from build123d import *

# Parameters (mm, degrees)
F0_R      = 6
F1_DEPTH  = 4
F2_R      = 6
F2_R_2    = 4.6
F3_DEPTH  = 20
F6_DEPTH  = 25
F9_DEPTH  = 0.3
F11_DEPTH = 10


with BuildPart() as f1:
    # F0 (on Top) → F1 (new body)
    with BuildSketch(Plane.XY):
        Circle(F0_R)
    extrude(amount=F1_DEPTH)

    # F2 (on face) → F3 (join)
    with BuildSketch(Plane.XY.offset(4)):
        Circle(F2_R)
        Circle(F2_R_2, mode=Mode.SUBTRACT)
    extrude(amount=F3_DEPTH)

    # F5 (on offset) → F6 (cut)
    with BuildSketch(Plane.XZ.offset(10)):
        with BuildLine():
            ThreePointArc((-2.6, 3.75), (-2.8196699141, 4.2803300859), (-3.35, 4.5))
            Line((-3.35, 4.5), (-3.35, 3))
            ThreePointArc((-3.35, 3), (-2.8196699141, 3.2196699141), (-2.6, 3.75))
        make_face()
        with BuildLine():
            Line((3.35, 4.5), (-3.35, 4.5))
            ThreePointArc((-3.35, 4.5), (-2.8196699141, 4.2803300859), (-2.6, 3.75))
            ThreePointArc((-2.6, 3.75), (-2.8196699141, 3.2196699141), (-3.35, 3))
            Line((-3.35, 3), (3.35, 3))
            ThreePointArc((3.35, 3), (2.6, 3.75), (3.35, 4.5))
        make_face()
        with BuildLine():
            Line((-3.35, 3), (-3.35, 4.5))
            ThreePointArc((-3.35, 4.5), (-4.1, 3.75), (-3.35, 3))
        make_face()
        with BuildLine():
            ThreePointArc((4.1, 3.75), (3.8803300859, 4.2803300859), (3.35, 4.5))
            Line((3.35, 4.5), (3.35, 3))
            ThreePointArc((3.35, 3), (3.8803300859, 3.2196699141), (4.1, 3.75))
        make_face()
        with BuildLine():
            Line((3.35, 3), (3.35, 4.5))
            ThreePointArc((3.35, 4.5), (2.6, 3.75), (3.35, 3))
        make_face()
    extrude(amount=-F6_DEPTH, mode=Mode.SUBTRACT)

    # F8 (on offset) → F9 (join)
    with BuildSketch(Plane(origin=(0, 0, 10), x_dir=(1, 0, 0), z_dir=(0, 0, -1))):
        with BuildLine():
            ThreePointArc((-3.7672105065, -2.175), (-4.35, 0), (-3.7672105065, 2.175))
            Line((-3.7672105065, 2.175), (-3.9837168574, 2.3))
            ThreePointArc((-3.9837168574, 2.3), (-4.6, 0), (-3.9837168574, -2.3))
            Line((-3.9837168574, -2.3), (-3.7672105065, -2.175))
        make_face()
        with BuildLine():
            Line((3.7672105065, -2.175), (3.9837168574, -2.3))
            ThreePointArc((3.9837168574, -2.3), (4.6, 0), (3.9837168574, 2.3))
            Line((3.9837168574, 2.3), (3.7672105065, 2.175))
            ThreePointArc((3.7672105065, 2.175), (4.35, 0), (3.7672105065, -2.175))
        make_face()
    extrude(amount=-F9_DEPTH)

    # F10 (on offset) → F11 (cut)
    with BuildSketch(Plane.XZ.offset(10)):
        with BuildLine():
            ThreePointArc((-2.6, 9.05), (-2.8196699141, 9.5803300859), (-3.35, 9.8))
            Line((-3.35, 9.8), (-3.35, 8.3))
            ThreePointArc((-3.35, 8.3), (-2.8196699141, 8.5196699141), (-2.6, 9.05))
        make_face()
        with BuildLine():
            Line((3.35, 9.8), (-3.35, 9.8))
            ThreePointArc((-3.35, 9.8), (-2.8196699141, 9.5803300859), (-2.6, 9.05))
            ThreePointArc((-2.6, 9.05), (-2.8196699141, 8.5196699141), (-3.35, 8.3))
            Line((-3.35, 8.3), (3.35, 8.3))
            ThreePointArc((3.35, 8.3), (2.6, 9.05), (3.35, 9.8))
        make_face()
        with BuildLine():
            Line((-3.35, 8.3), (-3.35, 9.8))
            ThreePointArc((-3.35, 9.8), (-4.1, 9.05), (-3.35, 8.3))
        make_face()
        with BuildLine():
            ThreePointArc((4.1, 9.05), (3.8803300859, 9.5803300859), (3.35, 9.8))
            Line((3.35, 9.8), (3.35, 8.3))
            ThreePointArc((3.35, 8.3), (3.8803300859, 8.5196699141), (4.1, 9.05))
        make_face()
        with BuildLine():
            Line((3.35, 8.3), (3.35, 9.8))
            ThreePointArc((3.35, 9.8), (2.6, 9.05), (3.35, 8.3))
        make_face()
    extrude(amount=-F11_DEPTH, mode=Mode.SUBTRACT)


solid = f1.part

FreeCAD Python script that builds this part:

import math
import FreeCAD as App
import Part
import Sketcher
from FreeCAD import Vector
Q = App.Units.Quantity

doc = App.newDocument("Part")
body = doc.addObject("PartDesign::Body", "Body")

sketch1 = body.newObject("Sketcher::SketchObject", "Sketch")
sketch1.AttachmentSupport = (doc.getObject("XY_Plane"), [""])
sketch1.MapMode = "FlatFace"
sketch1.addGeometry(Part.Circle(Vector(0, 0, 0), Vector(0, 0, 1), 6), False)
sketch1.addConstraint(Sketcher.Constraint("Coincident", 0, 3, -1, 1))
sketch1.addConstraint(Sketcher.Constraint("Diameter", 0, 12.0))
pad1 = body.newObject("PartDesign::Pad", "Pad")
pad1.Profile = sketch1
pad1.Length = 4

sketch2 = body.newObject("Sketcher::SketchObject", "Sketch001")
sketch2.AttachmentSupport = (doc.getObject("XY_Plane"), [""])
sketch2.MapMode = "FlatFace"
sketch2.AttachmentOffset = App.Placement(Vector(0, 0, 4), App.Rotation())
sketch2.addGeometry(Part.Circle(Vector(0, 0, 0), Vector(0, 0, 1), 6), False)
sketch2.addGeometry(Part.Circle(Vector(0, 0, 0), Vector(0, 0, 1), 4.6), False)
sketch2.addConstraint(Sketcher.Constraint("Coincident", 0, 3, -1, 1))
sketch2.addConstraint(Sketcher.Constraint("Coincident", 1, 3, -1, 1))
sketch2.addConstraint(Sketcher.Constraint("Diameter", 0, 12.0))
sketch2.addConstraint(Sketcher.Constraint("Diameter", 1, 9.2))
pad2 = body.newObject("PartDesign::Pad", "Pad001")
pad2.Profile = sketch2
pad2.Length = 20

sketch3 = body.newObject("Sketcher::SketchObject", "Sketch002")
sketch3.AttachmentSupport = (doc.getObject("XZ_Plane"), [""])
sketch3.MapMode = "FlatFace"
sketch3.AttachmentOffset = App.Placement(Vector(0, 0, 10), App.Rotation())
sketch3.addGeometry(Part.LineSegment(Vector(-3.4, 3, 0), Vector(3.4, 3, 0)), False)
sketch3.addGeometry(Part.ArcOfCircle(Part.Circle(Vector(3.4, 3.8, 0), Vector(0, 0, 1), 0.8), math.radians(-90), math.radians(0)), False)
sketch3.addGeometry(Part.ArcOfCircle(Part.Circle(Vector(3.4, 3.8, 0), Vector(0, 0, 1), 0.8), math.radians(0), math.radians(90)), False)
sketch3.addGeometry(Part.LineSegment(Vector(3.4, 4.5, 0), Vector(-3.4, 4.5, 0)), False)
sketch3.addGeometry(Part.ArcOfCircle(Part.Circle(Vector(-3.4, 3.8, 0), Vector(0, 0, 1), 0.8), math.radians(90), math.radians(270)), False)
sketch3.addConstraint(Sketcher.Constraint("Tangent", 0, 2, 1, 1))
sketch3.addConstraint(Sketcher.Constraint("Tangent", 1, 2, 2, 1))
sketch3.addConstraint(Sketcher.Constraint("Tangent", 2, 2, 3, 1))
sketch3.addConstraint(Sketcher.Constraint("Tangent", 3, 2, 4, 1))
sketch3.addConstraint(Sketcher.Constraint("Tangent", 4, 2, 0, 1))
sketch3.addConstraint(Sketcher.Constraint("Horizontal", 0))
sketch3.addConstraint(Sketcher.Constraint("Horizontal", 3))
sketch3.addConstraint(Sketcher.Constraint("Equal", 1, 2))
sketch3.addConstraint(Sketcher.Constraint("Horizontal", 4, 3, 1, 2))
sketch3.addConstraint(Sketcher.Constraint("Radius", 1, 0.75))
sketch3.addConstraint(Sketcher.Constraint("DistanceX", 0, 1, 0, 2, 6.7))
sketch3.addConstraint(Sketcher.Constraint("DistanceY", -1, 1, 0, 2, 3.0))
sketch3.addConstraint(Sketcher.Constraint("DistanceX", -1, 1, 1, 2, 4.1))
pocket1 = body.newObject("PartDesign::Pocket", "Pocket")
pocket1.Profile = sketch3
pocket1.Length = 25

sketch4 = body.newObject("Sketcher::SketchObject", "Sketch003")
sketch4.AttachmentSupport = (doc.getObject("XY_Plane"), [""])
sketch4.MapMode = "FlatFace"
sketch4.AttachmentOffset = App.Placement(Vector(0, 0, 10), App.Rotation())
sketch4.addGeometry(Part.ArcOfCircle(Part.Circle(Vector(0, 0, 0), Vector(0, 0, 1), 4.35), math.radians(150), math.radians(210)), False)
sketch4.addGeometry(Part.LineSegment(Vector(-3.77, -2.17, 0), Vector(-3.98, -2.3, 0)), False)
sketch4.addGeometry(Part.ArcOfCircle(Part.Circle(Vector(0, 0, 0), Vector(0, 0, 1), 4.6), math.radians(150), math.radians(210)), False)
sketch4.addGeometry(Part.LineSegment(Vector(-3.98, 2.3, 0), Vector(-3.77, 2.17, 0)), False)
sketch4.addGeometry(Part.LineSegment(Vector(3.77, 2.17, 0), Vector(3.98, 2.3, 0)), False)
sketch4.addGeometry(Part.ArcOfCircle(Part.Circle(Vector(0, 0, 0), Vector(0, 0, 1), 4.6), math.radians(-30), math.radians(30)), False)
sketch4.addGeometry(Part.LineSegment(Vector(3.98, -2.3, 0), Vector(3.77, -2.17, 0)), False)
sketch4.addGeometry(Part.ArcOfCircle(Part.Circle(Vector(0, 0, 0), Vector(0, 0, 1), 4.35), math.radians(-30), math.radians(30)), False)
sketch4.addConstraint(Sketcher.Constraint("Coincident", 0, 2, 1, 1))
sketch4.addConstraint(Sketcher.Constraint("Coincident", 1, 2, 2, 2))
sketch4.addConstraint(Sketcher.Constraint("Coincident", 2, 1, 3, 1))
sketch4.addConstraint(Sketcher.Constraint("Coincident", 3, 2, 0, 1))
sketch4.addConstraint(Sketcher.Constraint("Coincident", 4, 2, 5, 2))
sketch4.addConstraint(Sketcher.Constraint("Coincident", 5, 1, 6, 1))
sketch4.addConstraint(Sketcher.Constraint("Coincident", 6, 2, 7, 1))
sketch4.addConstraint(Sketcher.Constraint("Coincident", 7, 2, 4, 1))
sketch4.addConstraint(Sketcher.Constraint("Coincident", 0, 3, -1, 1))
sketch4.addConstraint(Sketcher.Constraint("Coincident", 2, 3, -1, 1))
sketch4.addConstraint(Sketcher.Constraint("Coincident", 5, 3, -1, 1))
sketch4.addConstraint(Sketcher.Constraint("Coincident", 7, 3, -1, 1))
sketch4.addConstraint(Sketcher.Constraint("Equal", 2, 5))
sketch4.addConstraint(Sketcher.Constraint("Equal", 0, 7))
sketch4.addConstraint(Sketcher.Constraint("Parallel", 1, 4))
sketch4.addConstraint(Sketcher.Constraint("Parallel", 3, 6))
sketch4.addConstraint(Sketcher.Constraint("Horizontal", 2, 1, 4, 2))
sketch4.addConstraint(Sketcher.Constraint("Horizontal", 1, 2, 5, 1))
sketch4.addConstraint(Sketcher.Constraint("Horizontal", 0, 2, 6, 2))
sketch4.addConstraint(Sketcher.Constraint("Vertical", 1, 2, 2, 1))
sketch4.addConstraint(Sketcher.Constraint("Radius", 2, 4.6))
sketch4.addConstraint(Sketcher.Constraint("Angle", 1, Q("-150 deg")))
sketch4.addConstraint(Sketcher.Constraint("Radius", 0, 4.35))
sketch4.addConstraint(Sketcher.Constraint("DistanceY", 1, 2, -1, 1, 2.3))
pad3 = body.newObject("PartDesign::Pad", "Pad002")
pad3.Profile = sketch4
pad3.Length = 0.3

sketch5 = body.newObject("Sketcher::SketchObject", "Sketch004")
sketch5.AttachmentSupport = (doc.getObject("XZ_Plane"), [""])
sketch5.MapMode = "FlatFace"
sketch5.AttachmentOffset = App.Placement(Vector(0, 0, 10), App.Rotation())
sketch5.addGeometry(Part.LineSegment(Vector(-3.4, 8.3, 0), Vector(3.4, 8.3, 0)), False)
sketch5.addGeometry(Part.ArcOfCircle(Part.Circle(Vector(3.4, 9.1, 0), Vector(0, 0, 1), 0.8), math.radians(-90), math.radians(0)), False)
sketch5.addGeometry(Part.ArcOfCircle(Part.Circle(Vector(3.4, 9.1, 0), Vector(0, 0, 1), 0.8), math.radians(0), math.radians(90)), False)
sketch5.addGeometry(Part.LineSegment(Vector(3.4, 9.8, 0), Vector(-3.4, 9.8, 0)), False)
sketch5.addGeometry(Part.ArcOfCircle(Part.Circle(Vector(-3.4, 9.1, 0), Vector(0, 0, 1), 0.8), math.radians(90), math.radians(270)), False)
sketch5.addConstraint(Sketcher.Constraint("Tangent", 0, 2, 1, 1))
sketch5.addConstraint(Sketcher.Constraint("Tangent", 1, 2, 2, 1))
sketch5.addConstraint(Sketcher.Constraint("Tangent", 2, 2, 3, 1))
sketch5.addConstraint(Sketcher.Constraint("Tangent", 3, 2, 4, 1))
sketch5.addConstraint(Sketcher.Constraint("Tangent", 4, 2, 0, 1))
sketch5.addConstraint(Sketcher.Constraint("Horizontal", 0))
sketch5.addConstraint(Sketcher.Constraint("Horizontal", 3))
sketch5.addConstraint(Sketcher.Constraint("Equal", 1, 2))
sketch5.addConstraint(Sketcher.Constraint("Horizontal", 4, 3, 1, 2))
sketch5.addConstraint(Sketcher.Constraint("Radius", 1, 0.75))
sketch5.addConstraint(Sketcher.Constraint("DistanceX", 0, 1, 0, 2, 6.7))
sketch5.addConstraint(Sketcher.Constraint("DistanceY", -1, 1, 0, 2, 8.3))
sketch5.addConstraint(Sketcher.Constraint("DistanceX", -1, 1, 1, 2, 4.1))
pocket2 = body.newObject("PartDesign::Pocket", "Pocket001")
pocket2.Profile = sketch5
pocket2.Length = 10

doc.recompute()
